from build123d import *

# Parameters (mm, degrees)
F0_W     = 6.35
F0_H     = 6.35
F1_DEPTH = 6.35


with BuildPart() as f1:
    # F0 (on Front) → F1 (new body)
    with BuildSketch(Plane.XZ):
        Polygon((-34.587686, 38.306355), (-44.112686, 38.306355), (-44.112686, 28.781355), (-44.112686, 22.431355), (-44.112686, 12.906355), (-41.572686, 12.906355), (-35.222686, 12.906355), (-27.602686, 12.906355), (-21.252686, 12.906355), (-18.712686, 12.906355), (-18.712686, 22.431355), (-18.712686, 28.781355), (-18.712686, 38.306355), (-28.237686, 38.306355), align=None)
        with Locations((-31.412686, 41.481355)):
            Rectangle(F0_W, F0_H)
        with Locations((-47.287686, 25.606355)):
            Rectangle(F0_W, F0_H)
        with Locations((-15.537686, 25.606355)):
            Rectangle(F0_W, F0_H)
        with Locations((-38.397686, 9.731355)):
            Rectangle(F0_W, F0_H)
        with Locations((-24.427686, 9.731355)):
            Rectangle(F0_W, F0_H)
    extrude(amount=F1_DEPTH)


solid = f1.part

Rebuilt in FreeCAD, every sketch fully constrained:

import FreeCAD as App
import Part
import Sketcher

V = App.Vector
Q = App.Units.Quantity

doc = App.newDocument("Part")
body = doc.addObject("PartDesign::Body", "Body")

# Sketch on XZ plane
sketch1 = doc.addObject("Sketcher::SketchObject", "Sketch")
body.addObject(sketch1)
sketch1.AttachmentSupport = (doc.XZ_Plane, [""])
sketch1.MapMode = "FlatFace"
sketch1.addGeometry([
    Part.LineSegment(V(-44.1, 38.3, 0), V(-44.1, 28.8, 0)),  # 0
    Part.LineSegment(V(-44.1, 28.8, 0), V(-50.5, 28.8, 0)),  # 1
    Part.LineSegment(V(-50.5, 28.8, 0), V(-50.5, 22.4, 0)),  # 2
    Part.LineSegment(V(-50.5, 22.4, 0), V(-44.1, 22.4, 0)),  # 3
    Part.LineSegment(V(-44.1, 22.4, 0), V(-44.1, 12.9, 0)),  # 4
    Part.LineSegment(V(-44.1, 12.9, 0), V(-41.6, 12.9, 0)),  # 5
    Part.LineSegment(V(-41.6, 12.9, 0), V(-41.6, 6.6, 0)),  # 6
    Part.LineSegment(V(-41.6, 6.6, 0), V(-35.2, 6.6, 0)),  # 7
    Part.LineSegment(V(-35.2, 6.6, 0), V(-35.2, 12.9, 0)),  # 8
    Part.LineSegment(V(-35.2, 12.9, 0), V(-27.6, 12.9, 0)),  # 9
    Part.LineSegment(V(-27.6, 12.9, 0), V(-27.6, 6.6, 0)),  # 10
    Part.LineSegment(V(-27.6, 6.6, 0), V(-21.3, 6.6, 0)),  # 11
    Part.LineSegment(V(-21.3, 6.6, 0), V(-21.3, 12.9, 0)),  # 12
    Part.LineSegment(V(-21.3, 12.9, 0), V(-18.7, 12.9, 0)),  # 13
    Part.LineSegment(V(-18.7, 12.9, 0), V(-18.7, 22.4, 0)),  # 14
    Part.LineSegment(V(-18.7, 22.4, 0), V(-12.4, 22.4, 0)),  # 15
    Part.LineSegment(V(-12.4, 22.4, 0), V(-12.4, 28.8, 0)),  # 16
    Part.LineSegment(V(-12.4, 28.8, 0), V(-18.7, 28.8, 0)),  # 17
    Part.LineSegment(V(-18.7, 28.8, 0), V(-18.7, 38.3, 0)),  # 18
    Part.LineSegment(V(-18.7, 38.3, 0), V(-28.2, 38.3, 0)),  # 19
    Part.LineSegment(V(-28.2, 38.3, 0), V(-28.2, 44.7, 0)),  # 20
    Part.LineSegment(V(-28.2, 44.7, 0), V(-34.6, 44.7, 0)),  # 21
    Part.LineSegment(V(-34.6, 44.7, 0), V(-34.6, 38.3, 0)),  # 22
    Part.LineSegment(V(-34.6, 38.3, 0), V(-44.1, 38.3, 0)),  # 23
], False)
sketch1.addConstraint([
    Sketcher.Constraint("Coincident", 0, 2, 1, 1),
    Sketcher.Constraint("Coincident", 1, 2, 2, 1),
    Sketcher.Constraint("Coincident", 2, 2, 3, 1),
    Sketcher.Constraint("Coincident", 3, 2, 4, 1),
    Sketcher.Constraint("Coincident", 4, 2, 5, 1),
    Sketcher.Constraint("Coincident", 5, 2, 6, 1),
    Sketcher.Constraint("Coincident", 6, 2, 7, 1),
    Sketcher.Constraint("Coincident", 7, 2, 8, 1),
    Sketcher.Constraint("Coincident", 8, 2, 9, 1),
    Sketcher.Constraint("Coincident", 9, 2, 10, 1),
    Sketcher.Constraint("Coincident", 10, 2, 11, 1),
    Sketcher.Constraint("Coincident", 11, 2, 12, 1),
    Sketcher.Constraint("Coincident", 12, 2, 13, 1),
    Sketcher.Constraint("Coincident", 13, 2, 14, 1),
    Sketcher.Constraint("Coincident", 14, 2, 15, 1),
    Sketcher.Constraint("Coincident", 15, 2, 16, 1),
    Sketcher.Constraint("Coincident", 16, 2, 17, 1),
    Sketcher.Constraint("Coincident", 17, 2, 18, 1),
    Sketcher.Constraint("Coincident", 18, 2, 19, 1),
    Sketcher.Constraint("Coincident", 19, 2, 20, 1),
    Sketcher.Constraint("Coincident", 20, 2, 21, 1),
    Sketcher.Constraint("Coincident", 21, 2, 22, 1),
    Sketcher.Constraint("Coincident", 22, 2, 23, 1),
    Sketcher.Constraint("Coincident", 23, 2, 0, 1),
    Sketcher.Constraint("Vertical", 0),
    Sketcher.Constraint("Horizontal", 1),
    Sketcher.Constraint("Vertical", 2),
    Sketcher.Constraint("Horizontal", 3),
    Sketcher.Constraint("Vertical", 4),
    Sketcher.Constraint("Horizontal", 5),
    Sketcher.Constraint("Vertical", 6),
    Sketcher.Constraint("Horizontal", 7),
    Sketcher.Constraint("Vertical", 8),
    Sketcher.Constraint("Horizontal", 9),
    Sketcher.Constraint("Vertical", 10),
    Sketcher.Constraint("Horizontal", 11),
    Sketcher.Constraint("Vertical", 12),
    Sketcher.Constraint("Horizontal", 13),
    Sketcher.Constraint("Vertical", 14),
    Sketcher.Constraint("Horizontal", 15),
    Sketcher.Constraint("Vertical", 16),
    Sketcher.Constraint("Horizontal", 17),
    Sketcher.Constraint("Vertical", 18),
    Sketcher.Constraint("Horizontal", 19),
    Sketcher.Constraint("Vertical", 20),
    Sketcher.Constraint("Horizontal", 21),
    Sketcher.Constraint("Vertical", 22),
    Sketcher.Constraint("Horizontal", 23),
    Sketcher.Constraint("Horizontal", 5, 2, 8, 2),
    Sketcher.Constraint("Horizontal", 7, 2, 10, 2),
    Sketcher.Constraint("Horizontal", 9, 2, 12, 2),
    Sketcher.Constraint("Horizontal", 3, 2, 14, 2),
    Sketcher.Constraint("Horizontal", 1, 2, 16, 2),
    Sketcher.Constraint("Horizontal", 19, 2, 22, 2),
    Sketcher.Constraint("Vertical", 0, 2, 3, 2),
    Sketcher.Constraint("Vertical", 14, 2, 17, 2),
    Sketcher.Constraint("Equal", 3, 7),
    Sketcher.Constraint("Equal", 7, 11),
    Sketcher.Constraint("Equal", 5, 13),
    Sketcher.Constraint("Equal", 11, 15),
    Sketcher.Constraint("Equal", 17, 21),
    Sketcher.Constraint("Equal", 19, 23),
    Sketcher.Constraint("Equal", 23, 0),
    Sketcher.Constraint("Equal", 21, 2),
    Sketcher.Constraint("Equal", 0, 4),
    Sketcher.Constraint("Equal", 2, 6),
    Sketcher.Constraint("Equal", 16, 20),
    Sketcher.Constraint("DistanceX", 5, 1, 5, 2, Q("0.1 in")),
    Sketcher.Constraint("DistanceX", 9, 1, 9, 2, Q("0.3 in")),
    Sketcher.Constraint("DistanceY", 13, 2, 18, 2, Q("1 in")),
    Sketcher.Constraint("DistanceX", 0, 2, -1, 1, 44.112686),
    Sketcher.Constraint("DistanceY", -1, 1, 0, 2, 28.781355),
])
pad1 = doc.addObject("PartDesign::Pad", "Pad")
body.addObject(pad1)
pad1.Profile = sketch1
pad1.Length = Q("0.25 in")

doc.recompute()
